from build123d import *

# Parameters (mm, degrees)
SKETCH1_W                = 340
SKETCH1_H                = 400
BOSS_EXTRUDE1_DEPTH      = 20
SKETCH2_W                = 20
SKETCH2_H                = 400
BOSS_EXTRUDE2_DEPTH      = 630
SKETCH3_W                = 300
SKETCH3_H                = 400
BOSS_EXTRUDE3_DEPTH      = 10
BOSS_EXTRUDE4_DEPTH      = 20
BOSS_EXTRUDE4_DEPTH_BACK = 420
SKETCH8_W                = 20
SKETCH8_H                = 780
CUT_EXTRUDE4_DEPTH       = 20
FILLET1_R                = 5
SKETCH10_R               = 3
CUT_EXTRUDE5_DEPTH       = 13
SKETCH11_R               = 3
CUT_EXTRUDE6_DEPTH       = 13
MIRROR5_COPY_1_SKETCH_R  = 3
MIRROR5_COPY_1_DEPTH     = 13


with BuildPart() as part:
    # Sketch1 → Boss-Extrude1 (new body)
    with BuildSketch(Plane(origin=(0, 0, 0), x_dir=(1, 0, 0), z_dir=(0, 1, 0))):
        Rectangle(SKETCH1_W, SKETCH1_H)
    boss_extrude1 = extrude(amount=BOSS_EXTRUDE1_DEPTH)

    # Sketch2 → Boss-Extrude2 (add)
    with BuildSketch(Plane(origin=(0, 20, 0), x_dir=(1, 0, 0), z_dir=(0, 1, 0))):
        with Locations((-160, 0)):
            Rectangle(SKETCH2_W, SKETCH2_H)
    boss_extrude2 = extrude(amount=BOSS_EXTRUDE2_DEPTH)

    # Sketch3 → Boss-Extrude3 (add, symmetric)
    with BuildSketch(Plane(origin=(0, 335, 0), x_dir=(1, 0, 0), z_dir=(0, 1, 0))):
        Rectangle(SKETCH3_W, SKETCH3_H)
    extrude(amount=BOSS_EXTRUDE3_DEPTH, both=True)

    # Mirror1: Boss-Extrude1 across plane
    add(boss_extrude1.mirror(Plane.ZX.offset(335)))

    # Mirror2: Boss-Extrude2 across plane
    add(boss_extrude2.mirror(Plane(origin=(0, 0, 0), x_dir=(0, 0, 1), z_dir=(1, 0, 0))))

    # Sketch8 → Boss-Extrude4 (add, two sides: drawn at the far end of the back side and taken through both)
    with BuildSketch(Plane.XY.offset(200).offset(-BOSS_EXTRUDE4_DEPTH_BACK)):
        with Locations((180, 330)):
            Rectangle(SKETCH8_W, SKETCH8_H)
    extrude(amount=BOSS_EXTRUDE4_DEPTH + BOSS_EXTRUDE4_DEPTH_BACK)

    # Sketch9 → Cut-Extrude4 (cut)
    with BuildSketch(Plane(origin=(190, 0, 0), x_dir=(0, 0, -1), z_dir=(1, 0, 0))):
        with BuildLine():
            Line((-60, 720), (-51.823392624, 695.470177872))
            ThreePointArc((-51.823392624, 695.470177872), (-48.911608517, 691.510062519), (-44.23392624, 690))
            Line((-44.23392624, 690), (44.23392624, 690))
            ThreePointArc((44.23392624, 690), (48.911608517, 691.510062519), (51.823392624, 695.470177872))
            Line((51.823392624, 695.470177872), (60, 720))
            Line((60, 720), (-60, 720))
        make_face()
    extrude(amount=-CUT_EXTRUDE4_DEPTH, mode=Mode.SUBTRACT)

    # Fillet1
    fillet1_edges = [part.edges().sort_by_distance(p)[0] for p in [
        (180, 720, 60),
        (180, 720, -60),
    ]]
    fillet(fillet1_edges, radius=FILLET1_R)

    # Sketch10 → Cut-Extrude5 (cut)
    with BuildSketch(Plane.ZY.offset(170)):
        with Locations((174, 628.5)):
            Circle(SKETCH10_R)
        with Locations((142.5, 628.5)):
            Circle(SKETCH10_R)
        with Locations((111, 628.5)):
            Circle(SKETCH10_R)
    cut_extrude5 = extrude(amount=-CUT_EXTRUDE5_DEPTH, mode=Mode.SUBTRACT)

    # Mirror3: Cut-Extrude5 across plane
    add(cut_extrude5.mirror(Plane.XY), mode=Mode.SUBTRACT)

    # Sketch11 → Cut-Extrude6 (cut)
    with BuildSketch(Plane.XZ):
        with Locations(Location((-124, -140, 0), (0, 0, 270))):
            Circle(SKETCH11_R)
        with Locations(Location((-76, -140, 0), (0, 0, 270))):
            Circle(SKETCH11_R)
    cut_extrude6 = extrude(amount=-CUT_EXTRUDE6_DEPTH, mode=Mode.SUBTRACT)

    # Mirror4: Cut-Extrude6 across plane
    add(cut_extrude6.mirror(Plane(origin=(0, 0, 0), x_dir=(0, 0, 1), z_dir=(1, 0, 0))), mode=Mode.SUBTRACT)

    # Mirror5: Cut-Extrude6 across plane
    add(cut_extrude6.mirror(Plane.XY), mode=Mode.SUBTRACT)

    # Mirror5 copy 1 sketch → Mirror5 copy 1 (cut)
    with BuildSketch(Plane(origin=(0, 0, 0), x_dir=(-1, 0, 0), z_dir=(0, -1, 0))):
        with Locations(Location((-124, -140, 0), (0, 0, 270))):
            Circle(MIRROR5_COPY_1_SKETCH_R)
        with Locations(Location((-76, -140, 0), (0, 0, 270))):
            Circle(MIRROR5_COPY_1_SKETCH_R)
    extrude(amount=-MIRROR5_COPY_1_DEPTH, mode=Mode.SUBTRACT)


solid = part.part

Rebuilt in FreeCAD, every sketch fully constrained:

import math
import FreeCAD as App
import Part
import Sketcher
Q = App.Units.Quantity


def edges_at(feature, points):
    """Names of the edges that pass closest to the given points."""
    edges = feature.Shape.Edges
    near = lambda p: min(range(len(edges)), key=lambda i: edges[i].distToShape(Part.Vertex(*p))[0])
    return sorted({f"Edge{near(p) + 1}" for p in points})


def add_polygon(sketch, points):
    """Adds a closed chain of lines whose ends are joined by coincident constraints."""
    first, n = sketch.GeometryCount, len(points)
    for a, b in zip(points, points[1:] + points[:1]):
        sketch.addGeometry(Part.LineSegment(App.Vector(*a, 0), App.Vector(*b, 0)), False)
    for i in range(n):
        sketch.addConstraint(Sketcher.Constraint("Coincident", first + i, 2, first + (i + 1) % n, 1))

doc = App.newDocument("Part")
body = doc.addObject("PartDesign::Body", "Body")

# Sketch on XZ plane
sketch1 = body.newObject("Sketcher::SketchObject", "Sketch")
sketch1.AttachmentSupport = (doc.getObject("XZ_Plane"), [""])
sketch1.MapMode = "FlatFace"
add_polygon(sketch1, [(-170, -200), (-170, 200), (170, 200), (170, -200)])  # lines 0-3
sketch1.addConstraint([
    Sketcher.Constraint("Vertical", 0),
    Sketcher.Constraint("Horizontal", 1),
    Sketcher.Constraint("Vertical", 2),
    Sketcher.Constraint("Horizontal", 3),
    Sketcher.Constraint("Symmetric", 0, 2, 2, 2, -1, 1),
    Sketcher.Constraint("DistanceX", 1, 1, 1, 2, Q("340 mm")),
    Sketcher.Constraint("DistanceY", 0, 1, 0, 2, Q("400 mm")),
])
pad1 = body.newObject("PartDesign::Pad", "Pad")
pad1.Profile = sketch1
pad1.Length = 20
pad1.Reversed = True

# Sketch on XZ plane
sketch2 = body.newObject("Sketcher::SketchObject", "Sketch001")
sketch2.AttachmentSupport = (doc.getObject("XZ_Plane"), [""])
sketch2.MapMode = "FlatFace"
sketch2.AttachmentOffset = App.Placement(App.Vector(0, 0, -20), App.Rotation())
add_polygon(sketch2, [(-170, -200), (-170, 200), (-150, 200), (-150, -200)])  # lines 0-3
sketch2.addConstraint([
    Sketcher.Constraint("Vertical", 0),
    Sketcher.Constraint("Horizontal", 1),
    Sketcher.Constraint("Vertical", 2),
    Sketcher.Constraint("Horizontal", 3),
    Sketcher.Constraint("DistanceX", 1, 1, 1, 2, Q("20 mm")),
    Sketcher.Constraint("DistanceY", 0, 1, 0, 2, Q("400 mm")),
    Sketcher.Constraint("DistanceX", 0, 2, -1, 1, Q("170 mm")),
    Sketcher.Constraint("DistanceY", -1, 1, 0, 2, Q("200 mm")),
])
pad2 = body.newObject("PartDesign::Pad", "Pad001")
pad2.Profile = sketch2
pad2.Length = 630
pad2.Reversed = True

# Sketch on XZ plane
sketch3 = body.newObject("Sketcher::SketchObject", "Sketch002")
sketch3.AttachmentSupport = (doc.getObject("XZ_Plane"), [""])
sketch3.MapMode = "FlatFace"
sketch3.AttachmentOffset = App.Placement(App.Vector(0, 0, -335), App.Rotation())
add_polygon(sketch3, [(-150, -200), (-150, 200), (150, 200), (150, -200)])  # lines 0-3
sketch3.addConstraint([
    Sketcher.Constraint("Vertical", 0),
    Sketcher.Constraint("Horizontal", 1),
    Sketcher.Constraint("Vertical", 2),
    Sketcher.Constraint("Horizontal", 3),
    Sketcher.Constraint("Symmetric", 0, 2, 2, 2, -1, 1),
    Sketcher.Constraint("DistanceX", 1, 1, 1, 2, Q("300 mm")),
    Sketcher.Constraint("DistanceY", 0, 1, 0, 2, Q("400 mm")),
])
pad3 = body.newObject("PartDesign::Pad", "Pad002")
pad3.Profile = sketch3
pad3.Length = 20
pad3.Midplane = True
doc.recompute()

datumplane = body.newObject("PartDesign::Plane", "DatumPlane")
datumplane.AttachmentSupport = (doc.getObject("XZ_Plane"), [""])
datumplane.MapMode = "FlatFace"
datumplane.AttachmentOffset = App.Placement(App.Vector(0, 0, -335), App.Rotation())
mirrored = body.newObject("PartDesign::Mirrored", "Mirrored")
mirrored.Originals = [pad1]
mirrored.MirrorPlane = (datumplane, [""])
body.Tip = mirrored
doc.recompute()

mirrored2 = body.newObject("PartDesign::Mirrored", "Mirrored001")
mirrored2.Originals = [pad2]
mirrored2.MirrorPlane = (doc.getObject("YZ_Plane"), [""])
body.Tip = mirrored2

# Sketch on XY plane
sketch4 = body.newObject("Sketcher::SketchObject", "Sketch003")
sketch4.AttachmentSupport = (doc.getObject("XY_Plane"), [""])
sketch4.MapMode = "FlatFace"
sketch4.AttachmentOffset = App.Placement(App.Vector(0, 0, 200), App.Rotation())
add_polygon(sketch4, [(170, 720), (170, -60), (190, -60), (190, 720)])  # lines 0-3
sketch4.addConstraint([
    Sketcher.Constraint("Vertical", 0),
    Sketcher.Constraint("Horizontal", 1),
    Sketcher.Constraint("Vertical", 2),
    Sketcher.Constraint("Horizontal", 3),
    Sketcher.Constraint("DistanceX", 1, 1, 1, 2, Q("20 mm")),
    Sketcher.Constraint("DistanceY", 0, 2, 0, 1, Q("780 mm")),
    Sketcher.Constraint("DistanceX", -1, 1, 0, 2, Q("170 mm")),
    Sketcher.Constraint("DistanceY", 0, 2, -1, 1, Q("60 mm")),
])
pad4 = body.newObject("PartDesign::Pad", "Pad003")
pad4.Profile = sketch4
pad4.Type = "TwoLengths"
pad4.Length = 20
pad4.Length2 = 420

# Sketch on YZ plane
sketch5 = body.newObject("Sketcher::SketchObject", "Sketch004")
sketch5.AttachmentSupport = (doc.getObject("YZ_Plane"), [""])
sketch5.MapMode = "FlatFace"
sketch5.AttachmentOffset = App.Placement(App.Vector(0, 0, 190), App.Rotation())
sketch5.addGeometry([
    Part.LineSegment(App.Vector(720, 60, 0), App.Vector(695, 52, 0)),  # 0
    Part.ArcOfCircle(Part.Circle(App.Vector(698, 44, 0), App.Vector(0, 0, 1), 8), math.radians(108), math.radians(180)),  # 1
    Part.LineSegment(App.Vector(690, 44, 0), App.Vector(690, -44, 0)),  # 2
    Part.ArcOfCircle(Part.Circle(App.Vector(698, -44, 0), App.Vector(0, 0, 1), 8), math.radians(-180), math.radians(-108)),  # 3
    Part.LineSegment(App.Vector(695, -52, 0), App.Vector(720, -60, 0)),  # 4
    Part.LineSegment(App.Vector(720, -60, 0), App.Vector(720, 60, 0)),  # 5
], False)
sketch5.addConstraint([
    Sketcher.Constraint("Tangent", 0, 2, 1, 1),
    Sketcher.Constraint("Tangent", 1, 2, 2, 1),
    Sketcher.Constraint("Tangent", 2, 2, 3, 1),
    Sketcher.Constraint("Tangent", 3, 2, 4, 1),
    Sketcher.Constraint("Coincident", 4, 2, 5, 1),
    Sketcher.Constraint("Coincident", 5, 2, 0, 1),
    Sketcher.Constraint("Vertical", 2),
    Sketcher.Constraint("Vertical", 5),
    Sketcher.Constraint("Equal", 1, 3),
    Sketcher.Constraint("Symmetric", 0, 2, 3, 2, -1),
    Sketcher.Constraint("Radius", 1, Q("8 mm")),
    Sketcher.Constraint("DistanceY", 5, 1, 5, 2, Q("120 mm")),
    Sketcher.Constraint("DistanceX", -1, 1, 1, 3, Q("698 mm")),
    Sketcher.Constraint("DistanceX", -1, 1, 4, 2, Q("720 mm")),
    Sketcher.Constraint("DistanceY", 2, 2, 2, 1, Q("88.467852 mm")),
])
pocket1 = body.newObject("PartDesign::Pocket", "Pocket")
pocket1.Profile = sketch5
pocket1.Length = 20
doc.recompute()

fillet = body.newObject("PartDesign::Fillet", "Fillet")
fillet.Base = (pocket1, edges_at(pocket1, [(180, 720, 60), (180, 720, -60)]))
fillet.Radius = 5

# Sketch on YZ plane
sketch6 = body.newObject("Sketcher::SketchObject", "Sketch005")
sketch6.AttachmentSupport = (doc.getObject("YZ_Plane"), [""])
sketch6.MapMode = "FlatFace"
sketch6.AttachmentOffset = App.Placement(App.Vector(0, 0, -170), App.Rotation())
sketch6.addGeometry([
    Part.Circle(App.Vector(628.5, 174, 0), App.Vector(0, 0, 1), 3),
    Part.Circle(App.Vector(628.5, 142.5, 0), App.Vector(0, 0, 1), 3),
    Part.Circle(App.Vector(628.5, 111, 0), App.Vector(0, 0, 1), 3),
], False)
sketch6.addConstraint([
    Sketcher.Constraint("Equal", 0, 1),
    Sketcher.Constraint("Equal", 1, 2),
    Sketcher.Constraint("Vertical", 0, 3, 1, 3),
    Sketcher.Constraint("Vertical", 1, 3, 2, 3),
    Sketcher.Constraint("Diameter", 0, Q("6 mm")),
    Sketcher.Constraint("DistanceY", -1, 1, 0, 3, Q("174 mm")),
    Sketcher.Constraint("DistanceY", -1, 1, 2, 3, Q("111 mm")),
    Sketcher.Constraint("DistanceX", -1, 1, 0, 3, Q("628.5 mm")),
    Sketcher.Constraint("DistanceY", -1, 1, 1, 3, Q("142.5 mm")),
])
pocket2 = body.newObject("PartDesign::Pocket", "Pocket001")
pocket2.Profile = sketch6
pocket2.Length = 13
pocket2.Reversed = True
doc.recompute()

mirrored3 = body.newObject("PartDesign::Mirrored", "Mirrored002")
mirrored3.Originals = [pocket2]
mirrored3.MirrorPlane = (doc.getObject("XY_Plane"), [""])
body.Tip = mirrored3

# Sketch on XZ plane
sketch7 = body.newObject("Sketcher::SketchObject", "Sketch006")
sketch7.AttachmentSupport = (doc.getObject("XZ_Plane"), [""])
sketch7.MapMode = "FlatFace"
sketch7.addGeometry([
    Part.Circle(App.Vector(-124, -140, 0), App.Vector(0, 0, 1), 3),
    Part.Circle(App.Vector(-76, -140, 0), App.Vector(0, 0, 1), 3),
], False)
sketch7.addConstraint([
    Sketcher.Constraint("Equal", 0, 1),
    Sketcher.Constraint("Horizontal", 0, 3, 1, 3),
    Sketcher.Constraint("Diameter", 0, Q("6 mm")),
    Sketcher.Constraint("DistanceX", 0, 3, -1, 1, Q("124 mm")),
    Sketcher.Constraint("DistanceY", 0, 3, -1, 1, Q("140 mm")),
    Sketcher.Constraint("DistanceX", 1, 3, -1, 1, Q("76 mm")),
])
pocket3 = body.newObject("PartDesign::Pocket", "Pocket002")
pocket3.Profile = sketch7
pocket3.Length = 13
doc.recompute()

mirrored4 = body.newObject("PartDesign::Mirrored", "Mirrored003")
mirrored4.Originals = [pocket3]
mirrored4.MirrorPlane = (doc.getObject("YZ_Plane"), [""])
body.Tip = mirrored4
doc.recompute()

mirrored5 = body.newObject("PartDesign::Mirrored", "Mirrored004")
mirrored5.Originals = [pocket3]
mirrored5.MirrorPlane = (doc.getObject("XY_Plane"), [""])
body.Tip = mirrored5

# Sketch on XZ plane
sketch8 = body.newObject("Sketcher::SketchObject", "Sketch007")
sketch8.AttachmentSupport = (doc.getObject("XZ_Plane"), [""])
sketch8.MapMode = "FlatFace"
sketch8.addGeometry([
    Part.Circle(App.Vector(124, 140, 0), App.Vector(0, 0, 1), 3),
    Part.Circle(App.Vector(76, 140, 0), App.Vector(0, 0, 1), 3),
], False)
sketch8.addConstraint([
    Sketcher.Constraint("Equal", 0, 1),
    Sketcher.Constraint("Horizontal", 0, 3, 1, 3),
    Sketcher.Constraint("Diameter", 0, Q("6 mm")),
    Sketcher.Constraint("DistanceX", -1, 1, 0, 3, Q("124 mm")),
    Sketcher.Constraint("DistanceY", -1, 1, 0, 3, Q("140 mm")),
    Sketcher.Constraint("DistanceX", -1, 1, 1, 3, Q("76 mm")),
])
pocket4 = body.newObject("PartDesign::Pocket", "Pocket003")
pocket4.Profile = sketch8
pocket4.Length = 13

doc.recompute()
